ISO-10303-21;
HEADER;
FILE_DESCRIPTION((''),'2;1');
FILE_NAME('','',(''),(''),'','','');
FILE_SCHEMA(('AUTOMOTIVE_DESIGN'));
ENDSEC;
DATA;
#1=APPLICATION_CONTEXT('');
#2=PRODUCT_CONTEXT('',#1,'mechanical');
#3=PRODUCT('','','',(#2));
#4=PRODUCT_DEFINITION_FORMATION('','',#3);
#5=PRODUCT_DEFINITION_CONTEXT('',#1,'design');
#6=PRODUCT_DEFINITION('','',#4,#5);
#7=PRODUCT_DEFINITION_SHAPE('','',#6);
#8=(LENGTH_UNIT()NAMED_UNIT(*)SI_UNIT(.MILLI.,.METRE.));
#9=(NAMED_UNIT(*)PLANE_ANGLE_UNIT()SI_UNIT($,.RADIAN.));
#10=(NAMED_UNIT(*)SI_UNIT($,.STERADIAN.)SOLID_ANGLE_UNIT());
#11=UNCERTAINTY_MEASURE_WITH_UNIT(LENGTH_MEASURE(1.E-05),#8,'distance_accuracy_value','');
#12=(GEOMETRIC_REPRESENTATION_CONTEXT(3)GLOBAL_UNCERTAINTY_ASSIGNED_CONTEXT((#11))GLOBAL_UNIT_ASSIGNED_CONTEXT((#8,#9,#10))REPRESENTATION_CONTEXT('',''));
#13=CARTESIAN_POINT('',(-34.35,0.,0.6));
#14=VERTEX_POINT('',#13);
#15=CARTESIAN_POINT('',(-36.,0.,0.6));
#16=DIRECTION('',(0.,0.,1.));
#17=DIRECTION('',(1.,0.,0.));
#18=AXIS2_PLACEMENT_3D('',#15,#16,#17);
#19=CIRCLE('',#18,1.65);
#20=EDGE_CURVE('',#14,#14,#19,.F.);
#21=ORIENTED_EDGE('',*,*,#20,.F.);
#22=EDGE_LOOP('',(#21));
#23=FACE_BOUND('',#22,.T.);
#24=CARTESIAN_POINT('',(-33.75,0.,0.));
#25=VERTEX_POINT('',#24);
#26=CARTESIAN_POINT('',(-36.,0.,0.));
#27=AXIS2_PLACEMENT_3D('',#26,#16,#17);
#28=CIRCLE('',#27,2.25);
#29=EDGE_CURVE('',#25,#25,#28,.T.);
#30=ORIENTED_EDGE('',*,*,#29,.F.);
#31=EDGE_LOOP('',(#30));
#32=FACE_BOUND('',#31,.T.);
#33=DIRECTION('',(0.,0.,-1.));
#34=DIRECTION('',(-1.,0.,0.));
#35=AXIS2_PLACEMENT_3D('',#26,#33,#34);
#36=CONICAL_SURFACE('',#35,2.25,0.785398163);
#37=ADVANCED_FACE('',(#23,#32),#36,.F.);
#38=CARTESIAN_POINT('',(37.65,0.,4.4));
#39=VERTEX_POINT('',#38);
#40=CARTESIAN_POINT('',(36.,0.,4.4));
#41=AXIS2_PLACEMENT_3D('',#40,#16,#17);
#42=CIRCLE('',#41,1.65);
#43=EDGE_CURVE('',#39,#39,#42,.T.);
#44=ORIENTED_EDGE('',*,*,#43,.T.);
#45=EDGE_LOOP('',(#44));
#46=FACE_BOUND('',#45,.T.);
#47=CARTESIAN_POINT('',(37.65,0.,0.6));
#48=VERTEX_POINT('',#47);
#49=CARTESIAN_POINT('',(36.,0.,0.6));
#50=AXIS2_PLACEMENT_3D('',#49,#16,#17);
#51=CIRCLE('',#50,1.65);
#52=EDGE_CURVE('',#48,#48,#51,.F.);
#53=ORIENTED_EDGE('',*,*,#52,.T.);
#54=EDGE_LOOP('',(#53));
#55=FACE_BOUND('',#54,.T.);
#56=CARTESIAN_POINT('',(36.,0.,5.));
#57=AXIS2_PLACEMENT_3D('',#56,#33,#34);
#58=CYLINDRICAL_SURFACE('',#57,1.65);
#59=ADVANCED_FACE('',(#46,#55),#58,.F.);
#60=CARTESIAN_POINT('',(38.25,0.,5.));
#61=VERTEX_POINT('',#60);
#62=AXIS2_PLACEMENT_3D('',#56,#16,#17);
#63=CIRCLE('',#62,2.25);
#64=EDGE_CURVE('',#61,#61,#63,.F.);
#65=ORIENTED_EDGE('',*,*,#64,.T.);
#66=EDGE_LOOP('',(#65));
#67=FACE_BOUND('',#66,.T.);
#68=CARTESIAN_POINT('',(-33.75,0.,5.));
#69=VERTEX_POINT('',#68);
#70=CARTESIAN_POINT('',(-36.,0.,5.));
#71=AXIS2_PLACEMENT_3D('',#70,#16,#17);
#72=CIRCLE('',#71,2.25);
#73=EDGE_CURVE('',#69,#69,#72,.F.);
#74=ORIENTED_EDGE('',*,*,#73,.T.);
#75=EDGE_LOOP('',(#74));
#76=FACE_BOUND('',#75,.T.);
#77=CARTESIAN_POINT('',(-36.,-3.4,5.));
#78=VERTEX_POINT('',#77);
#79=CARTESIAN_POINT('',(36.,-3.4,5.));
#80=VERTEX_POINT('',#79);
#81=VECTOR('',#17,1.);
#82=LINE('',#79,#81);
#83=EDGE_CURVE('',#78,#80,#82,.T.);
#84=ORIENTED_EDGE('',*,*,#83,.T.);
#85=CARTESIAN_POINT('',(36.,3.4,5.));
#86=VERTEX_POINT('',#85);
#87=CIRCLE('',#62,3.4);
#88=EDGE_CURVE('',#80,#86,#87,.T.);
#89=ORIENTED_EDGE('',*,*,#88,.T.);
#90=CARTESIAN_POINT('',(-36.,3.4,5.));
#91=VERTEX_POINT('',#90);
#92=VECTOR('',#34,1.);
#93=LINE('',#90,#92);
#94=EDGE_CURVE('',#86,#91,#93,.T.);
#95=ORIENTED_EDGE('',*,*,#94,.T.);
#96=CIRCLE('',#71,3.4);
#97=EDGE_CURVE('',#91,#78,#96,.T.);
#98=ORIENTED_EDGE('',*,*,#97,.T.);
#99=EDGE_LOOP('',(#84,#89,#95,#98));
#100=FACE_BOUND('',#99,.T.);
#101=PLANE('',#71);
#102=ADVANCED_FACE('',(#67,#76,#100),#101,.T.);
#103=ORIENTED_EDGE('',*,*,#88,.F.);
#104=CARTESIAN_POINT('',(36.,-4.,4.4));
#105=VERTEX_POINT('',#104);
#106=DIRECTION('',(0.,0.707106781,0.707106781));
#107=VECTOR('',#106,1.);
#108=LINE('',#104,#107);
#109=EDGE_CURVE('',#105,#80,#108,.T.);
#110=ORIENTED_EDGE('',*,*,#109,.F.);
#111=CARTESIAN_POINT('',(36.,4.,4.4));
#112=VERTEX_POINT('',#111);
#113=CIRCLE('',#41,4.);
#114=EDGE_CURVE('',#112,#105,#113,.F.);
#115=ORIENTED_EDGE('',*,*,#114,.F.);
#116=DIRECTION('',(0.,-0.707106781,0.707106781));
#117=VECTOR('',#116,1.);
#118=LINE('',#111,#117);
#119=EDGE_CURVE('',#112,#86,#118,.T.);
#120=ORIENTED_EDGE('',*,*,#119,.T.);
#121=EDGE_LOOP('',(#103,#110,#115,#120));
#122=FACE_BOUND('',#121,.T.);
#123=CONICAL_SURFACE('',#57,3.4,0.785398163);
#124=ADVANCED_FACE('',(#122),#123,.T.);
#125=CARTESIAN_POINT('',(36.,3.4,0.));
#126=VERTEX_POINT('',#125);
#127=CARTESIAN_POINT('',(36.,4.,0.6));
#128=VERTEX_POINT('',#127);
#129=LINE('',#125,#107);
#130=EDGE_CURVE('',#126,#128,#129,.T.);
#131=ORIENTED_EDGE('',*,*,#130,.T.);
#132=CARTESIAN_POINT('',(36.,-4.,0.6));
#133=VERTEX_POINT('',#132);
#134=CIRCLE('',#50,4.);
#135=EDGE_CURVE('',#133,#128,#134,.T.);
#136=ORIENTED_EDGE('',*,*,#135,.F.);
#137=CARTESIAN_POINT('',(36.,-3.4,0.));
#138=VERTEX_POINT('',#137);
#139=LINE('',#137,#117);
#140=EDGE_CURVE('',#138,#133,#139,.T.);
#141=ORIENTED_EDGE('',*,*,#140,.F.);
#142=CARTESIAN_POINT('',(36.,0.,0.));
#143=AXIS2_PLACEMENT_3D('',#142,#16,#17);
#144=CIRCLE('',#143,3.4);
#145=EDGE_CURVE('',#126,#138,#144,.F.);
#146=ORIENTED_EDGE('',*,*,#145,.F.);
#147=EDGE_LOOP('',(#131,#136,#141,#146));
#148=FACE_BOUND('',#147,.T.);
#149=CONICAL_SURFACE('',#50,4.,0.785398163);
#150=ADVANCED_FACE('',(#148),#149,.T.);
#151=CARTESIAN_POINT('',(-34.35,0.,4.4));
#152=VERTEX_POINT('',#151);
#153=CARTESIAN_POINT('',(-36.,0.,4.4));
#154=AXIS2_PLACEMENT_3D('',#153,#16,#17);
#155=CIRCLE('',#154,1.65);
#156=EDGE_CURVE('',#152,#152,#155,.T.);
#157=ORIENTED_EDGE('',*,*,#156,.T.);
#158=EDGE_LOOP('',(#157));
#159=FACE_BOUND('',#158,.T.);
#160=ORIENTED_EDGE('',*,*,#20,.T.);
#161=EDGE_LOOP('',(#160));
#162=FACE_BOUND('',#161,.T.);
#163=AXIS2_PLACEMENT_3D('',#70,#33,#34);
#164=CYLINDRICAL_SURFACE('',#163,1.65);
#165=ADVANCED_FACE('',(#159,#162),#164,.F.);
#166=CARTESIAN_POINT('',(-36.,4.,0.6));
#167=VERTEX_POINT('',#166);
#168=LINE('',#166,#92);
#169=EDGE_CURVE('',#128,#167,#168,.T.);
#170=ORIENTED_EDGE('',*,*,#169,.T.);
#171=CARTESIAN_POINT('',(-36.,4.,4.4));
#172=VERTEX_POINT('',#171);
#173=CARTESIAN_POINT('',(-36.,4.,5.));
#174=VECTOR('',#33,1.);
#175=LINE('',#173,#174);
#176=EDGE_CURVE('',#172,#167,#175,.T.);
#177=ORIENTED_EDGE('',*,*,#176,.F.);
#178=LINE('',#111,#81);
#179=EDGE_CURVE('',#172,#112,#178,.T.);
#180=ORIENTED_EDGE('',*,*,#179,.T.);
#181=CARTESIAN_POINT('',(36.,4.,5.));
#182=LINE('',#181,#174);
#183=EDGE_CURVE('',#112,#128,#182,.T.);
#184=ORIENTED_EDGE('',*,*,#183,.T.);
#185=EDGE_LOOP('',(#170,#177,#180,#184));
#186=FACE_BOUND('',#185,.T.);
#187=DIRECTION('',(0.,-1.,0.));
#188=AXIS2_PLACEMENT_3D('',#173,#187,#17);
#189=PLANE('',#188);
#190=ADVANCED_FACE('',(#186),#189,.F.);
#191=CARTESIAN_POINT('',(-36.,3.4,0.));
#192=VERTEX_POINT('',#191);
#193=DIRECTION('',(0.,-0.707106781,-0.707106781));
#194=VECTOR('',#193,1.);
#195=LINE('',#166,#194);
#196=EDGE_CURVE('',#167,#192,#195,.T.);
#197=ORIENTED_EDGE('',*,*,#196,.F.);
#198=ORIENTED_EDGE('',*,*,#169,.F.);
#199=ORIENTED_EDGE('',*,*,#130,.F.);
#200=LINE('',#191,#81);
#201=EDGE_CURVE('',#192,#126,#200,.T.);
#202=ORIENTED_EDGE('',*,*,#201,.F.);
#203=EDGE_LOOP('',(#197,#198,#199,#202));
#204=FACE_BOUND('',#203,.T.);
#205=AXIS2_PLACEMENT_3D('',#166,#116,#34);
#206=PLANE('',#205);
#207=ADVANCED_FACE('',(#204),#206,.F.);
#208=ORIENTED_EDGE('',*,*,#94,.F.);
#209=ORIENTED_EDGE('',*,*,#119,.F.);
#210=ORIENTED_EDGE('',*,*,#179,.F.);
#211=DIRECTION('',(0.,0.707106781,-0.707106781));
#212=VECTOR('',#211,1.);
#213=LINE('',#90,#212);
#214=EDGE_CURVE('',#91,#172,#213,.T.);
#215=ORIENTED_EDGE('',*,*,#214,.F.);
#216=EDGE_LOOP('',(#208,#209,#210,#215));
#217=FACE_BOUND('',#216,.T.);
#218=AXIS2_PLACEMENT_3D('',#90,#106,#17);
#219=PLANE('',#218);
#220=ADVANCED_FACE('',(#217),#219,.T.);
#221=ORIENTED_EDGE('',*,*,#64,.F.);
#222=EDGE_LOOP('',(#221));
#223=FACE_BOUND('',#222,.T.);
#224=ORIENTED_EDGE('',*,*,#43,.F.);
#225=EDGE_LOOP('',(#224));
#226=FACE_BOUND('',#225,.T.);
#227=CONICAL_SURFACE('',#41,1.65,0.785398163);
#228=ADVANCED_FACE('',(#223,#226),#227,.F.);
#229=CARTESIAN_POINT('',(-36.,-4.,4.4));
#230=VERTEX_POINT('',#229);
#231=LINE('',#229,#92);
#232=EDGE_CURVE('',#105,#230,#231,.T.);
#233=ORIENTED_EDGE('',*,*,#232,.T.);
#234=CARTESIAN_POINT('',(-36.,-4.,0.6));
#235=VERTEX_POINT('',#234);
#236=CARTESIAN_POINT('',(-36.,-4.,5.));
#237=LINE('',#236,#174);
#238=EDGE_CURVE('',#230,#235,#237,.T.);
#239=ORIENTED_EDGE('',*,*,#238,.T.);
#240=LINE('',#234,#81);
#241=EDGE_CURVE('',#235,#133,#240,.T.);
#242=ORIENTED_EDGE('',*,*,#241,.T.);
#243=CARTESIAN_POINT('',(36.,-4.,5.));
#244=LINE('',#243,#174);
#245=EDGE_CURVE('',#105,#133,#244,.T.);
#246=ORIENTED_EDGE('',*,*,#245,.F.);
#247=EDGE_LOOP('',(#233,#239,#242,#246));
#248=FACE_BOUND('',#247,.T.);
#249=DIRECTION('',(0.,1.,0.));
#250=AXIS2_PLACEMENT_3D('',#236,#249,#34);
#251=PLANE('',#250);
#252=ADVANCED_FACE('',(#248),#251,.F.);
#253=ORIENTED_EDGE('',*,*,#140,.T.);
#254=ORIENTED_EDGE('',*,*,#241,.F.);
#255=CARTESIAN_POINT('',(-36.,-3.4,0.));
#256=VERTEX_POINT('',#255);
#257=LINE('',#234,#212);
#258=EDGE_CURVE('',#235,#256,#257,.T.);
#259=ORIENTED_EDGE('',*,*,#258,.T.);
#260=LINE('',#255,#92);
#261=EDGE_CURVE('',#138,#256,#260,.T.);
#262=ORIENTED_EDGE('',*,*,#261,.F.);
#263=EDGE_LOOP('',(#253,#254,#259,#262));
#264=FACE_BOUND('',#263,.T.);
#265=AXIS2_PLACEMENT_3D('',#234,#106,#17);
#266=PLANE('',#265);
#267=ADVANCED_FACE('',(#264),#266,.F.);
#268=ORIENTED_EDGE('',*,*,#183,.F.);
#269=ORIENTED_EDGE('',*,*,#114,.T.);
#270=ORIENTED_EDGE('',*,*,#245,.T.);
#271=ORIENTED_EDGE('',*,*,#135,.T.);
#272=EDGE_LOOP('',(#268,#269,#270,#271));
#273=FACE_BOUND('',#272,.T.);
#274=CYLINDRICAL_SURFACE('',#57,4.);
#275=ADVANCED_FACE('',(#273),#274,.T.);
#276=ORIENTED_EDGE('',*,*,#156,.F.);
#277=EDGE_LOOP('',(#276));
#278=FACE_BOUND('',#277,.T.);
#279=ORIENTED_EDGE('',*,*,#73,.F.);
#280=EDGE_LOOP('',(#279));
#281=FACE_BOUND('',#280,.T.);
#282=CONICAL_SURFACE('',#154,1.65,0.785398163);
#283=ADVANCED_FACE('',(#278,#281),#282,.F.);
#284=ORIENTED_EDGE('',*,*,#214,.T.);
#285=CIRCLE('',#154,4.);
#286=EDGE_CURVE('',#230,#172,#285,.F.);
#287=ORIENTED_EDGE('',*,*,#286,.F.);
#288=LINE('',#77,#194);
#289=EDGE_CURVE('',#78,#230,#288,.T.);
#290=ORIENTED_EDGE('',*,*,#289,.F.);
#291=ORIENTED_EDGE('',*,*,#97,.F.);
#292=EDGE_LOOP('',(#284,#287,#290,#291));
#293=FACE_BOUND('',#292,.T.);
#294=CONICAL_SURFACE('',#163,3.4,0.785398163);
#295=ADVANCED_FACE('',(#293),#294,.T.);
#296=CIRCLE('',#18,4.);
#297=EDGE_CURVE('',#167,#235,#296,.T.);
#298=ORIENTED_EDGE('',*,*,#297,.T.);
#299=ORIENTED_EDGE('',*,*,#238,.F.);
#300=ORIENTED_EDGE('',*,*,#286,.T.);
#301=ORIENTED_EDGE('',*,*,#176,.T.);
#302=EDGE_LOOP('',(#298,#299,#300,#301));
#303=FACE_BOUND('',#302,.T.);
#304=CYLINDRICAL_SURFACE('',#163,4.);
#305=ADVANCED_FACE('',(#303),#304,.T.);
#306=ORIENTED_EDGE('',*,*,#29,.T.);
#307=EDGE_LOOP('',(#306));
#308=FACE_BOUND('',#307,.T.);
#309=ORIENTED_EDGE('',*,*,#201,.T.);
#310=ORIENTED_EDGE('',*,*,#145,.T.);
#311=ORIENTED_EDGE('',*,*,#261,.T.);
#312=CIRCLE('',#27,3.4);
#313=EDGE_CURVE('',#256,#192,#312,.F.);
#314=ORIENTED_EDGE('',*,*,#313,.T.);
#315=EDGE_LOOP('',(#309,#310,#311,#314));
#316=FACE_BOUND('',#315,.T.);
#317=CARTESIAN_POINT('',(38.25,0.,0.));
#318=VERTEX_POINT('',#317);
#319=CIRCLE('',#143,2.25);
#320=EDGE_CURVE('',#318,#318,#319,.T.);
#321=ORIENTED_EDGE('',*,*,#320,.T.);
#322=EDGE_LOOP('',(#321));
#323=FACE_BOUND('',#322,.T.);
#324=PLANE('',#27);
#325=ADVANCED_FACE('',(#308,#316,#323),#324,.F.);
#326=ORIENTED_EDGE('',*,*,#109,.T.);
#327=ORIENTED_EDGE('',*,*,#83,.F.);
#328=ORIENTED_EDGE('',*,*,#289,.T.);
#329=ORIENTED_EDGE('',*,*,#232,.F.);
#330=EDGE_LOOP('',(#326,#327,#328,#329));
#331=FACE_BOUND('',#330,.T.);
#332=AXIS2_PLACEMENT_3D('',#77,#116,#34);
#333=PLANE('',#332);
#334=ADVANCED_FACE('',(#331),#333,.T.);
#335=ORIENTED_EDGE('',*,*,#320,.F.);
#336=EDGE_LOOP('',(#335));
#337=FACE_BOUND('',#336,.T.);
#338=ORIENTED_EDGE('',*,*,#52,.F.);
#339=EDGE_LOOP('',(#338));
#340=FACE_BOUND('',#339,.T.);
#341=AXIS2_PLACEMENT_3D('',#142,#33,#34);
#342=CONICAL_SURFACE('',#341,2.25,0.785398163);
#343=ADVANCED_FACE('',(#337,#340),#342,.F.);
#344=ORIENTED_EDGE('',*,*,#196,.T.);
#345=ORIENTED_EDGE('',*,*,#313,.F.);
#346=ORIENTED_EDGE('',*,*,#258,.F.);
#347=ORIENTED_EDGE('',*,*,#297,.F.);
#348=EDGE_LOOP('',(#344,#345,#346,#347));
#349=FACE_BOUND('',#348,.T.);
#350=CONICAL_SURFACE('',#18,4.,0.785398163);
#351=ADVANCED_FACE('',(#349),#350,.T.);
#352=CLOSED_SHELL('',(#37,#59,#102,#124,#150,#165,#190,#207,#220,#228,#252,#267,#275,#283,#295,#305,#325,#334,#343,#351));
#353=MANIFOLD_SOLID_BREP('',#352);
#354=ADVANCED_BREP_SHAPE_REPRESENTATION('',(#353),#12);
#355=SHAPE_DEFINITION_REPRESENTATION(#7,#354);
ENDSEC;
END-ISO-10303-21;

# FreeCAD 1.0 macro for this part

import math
import FreeCAD as App
import Part
import Sketcher

V = App.Vector
Q = App.Units.Quantity


def edges_at(feature, points):
    """Names of the edges that pass closest to the given points."""
    edges = feature.Shape.Edges
    near = lambda p: min(range(len(edges)), key=lambda i: edges[i].distToShape(Part.Vertex(*p))[0])
    return sorted({f"Edge{near(p) + 1}" for p in points})

doc = App.newDocument("Part")
body = doc.addObject("PartDesign::Body", "Body")

# Sketch on XY plane
sketch1 = body.newObject("Sketcher::SketchObject", "Sketch")
sketch1.AttachmentSupport = (doc.getObject("XY_Plane"), [""])
sketch1.MapMode = "FlatFace"
sketch1.addGeometry([
    Part.LineSegment(V(36, 4, 0), V(-36, 4, 0)),  # 0
    Part.ArcOfCircle(Part.Circle(V(-36, 0, 0), V(0, 0, 1), 4), math.radians(90), math.radians(270)),  # 1
    Part.LineSegment(V(-36, -4, 0), V(36, -4, 0)),  # 2
    Part.ArcOfCircle(Part.Circle(V(36, 0, 0), V(0, 0, 1), 4), math.radians(-90), math.radians(90)),  # 3
    Part.Circle(V(36, 0, 0), V(0, 0, 1), 1.65),  # 4
    Part.Circle(V(-36, 0, 0), V(0, 0, 1), 1.65),  # 5
], False)
sketch1.addConstraint([
    Sketcher.Constraint("Tangent", 0, 2, 1, 1),
    Sketcher.Constraint("Tangent", 1, 2, 2, 1),
    Sketcher.Constraint("Tangent", 2, 2, 3, 1),
    Sketcher.Constraint("Tangent", 3, 2, 0, 1),
    Sketcher.Constraint("Horizontal", 0),
    Sketcher.Constraint("Horizontal", 2),
    Sketcher.Constraint("Coincident", 4, 3, 3, 3),
    Sketcher.Constraint("Coincident", 5, 3, 1, 3),
    Sketcher.Constraint("Equal", 4, 5),
    Sketcher.Constraint("Symmetric", 1, 3, 3, 3, -1, 1),
    Sketcher.Constraint("Radius", 1, Q("4 mm")),
    Sketcher.Constraint("Diameter", 4, Q("3.3 mm")),
    Sketcher.Constraint("DistanceX", 0, 2, 0, 1, Q("72 mm")),
])
pad1 = body.newObject("PartDesign::Pad", "Pad")
pad1.Profile = sketch1
pad1.Length = 5
doc.recompute()

chamfer = body.newObject("PartDesign::Chamfer", "Chamfer")
chamfer.Base = (pad1, edges_at(pad1, [
    (-37.65, 0, 0),
    (-37.65, 0, 5),
    (40, 0, 5),
    (34.35, 0, 0),
    (34.35, 0, 5),
    (0, 4, 5),
    (-40, 0, 5),
    (0, 4, 0),
    (40, 0, 0),
    (0, -4, 0),
    (-40, 0, 0),
    (0, -4, 5),
]))
chamfer.Size = 0.6

doc.recompute()
